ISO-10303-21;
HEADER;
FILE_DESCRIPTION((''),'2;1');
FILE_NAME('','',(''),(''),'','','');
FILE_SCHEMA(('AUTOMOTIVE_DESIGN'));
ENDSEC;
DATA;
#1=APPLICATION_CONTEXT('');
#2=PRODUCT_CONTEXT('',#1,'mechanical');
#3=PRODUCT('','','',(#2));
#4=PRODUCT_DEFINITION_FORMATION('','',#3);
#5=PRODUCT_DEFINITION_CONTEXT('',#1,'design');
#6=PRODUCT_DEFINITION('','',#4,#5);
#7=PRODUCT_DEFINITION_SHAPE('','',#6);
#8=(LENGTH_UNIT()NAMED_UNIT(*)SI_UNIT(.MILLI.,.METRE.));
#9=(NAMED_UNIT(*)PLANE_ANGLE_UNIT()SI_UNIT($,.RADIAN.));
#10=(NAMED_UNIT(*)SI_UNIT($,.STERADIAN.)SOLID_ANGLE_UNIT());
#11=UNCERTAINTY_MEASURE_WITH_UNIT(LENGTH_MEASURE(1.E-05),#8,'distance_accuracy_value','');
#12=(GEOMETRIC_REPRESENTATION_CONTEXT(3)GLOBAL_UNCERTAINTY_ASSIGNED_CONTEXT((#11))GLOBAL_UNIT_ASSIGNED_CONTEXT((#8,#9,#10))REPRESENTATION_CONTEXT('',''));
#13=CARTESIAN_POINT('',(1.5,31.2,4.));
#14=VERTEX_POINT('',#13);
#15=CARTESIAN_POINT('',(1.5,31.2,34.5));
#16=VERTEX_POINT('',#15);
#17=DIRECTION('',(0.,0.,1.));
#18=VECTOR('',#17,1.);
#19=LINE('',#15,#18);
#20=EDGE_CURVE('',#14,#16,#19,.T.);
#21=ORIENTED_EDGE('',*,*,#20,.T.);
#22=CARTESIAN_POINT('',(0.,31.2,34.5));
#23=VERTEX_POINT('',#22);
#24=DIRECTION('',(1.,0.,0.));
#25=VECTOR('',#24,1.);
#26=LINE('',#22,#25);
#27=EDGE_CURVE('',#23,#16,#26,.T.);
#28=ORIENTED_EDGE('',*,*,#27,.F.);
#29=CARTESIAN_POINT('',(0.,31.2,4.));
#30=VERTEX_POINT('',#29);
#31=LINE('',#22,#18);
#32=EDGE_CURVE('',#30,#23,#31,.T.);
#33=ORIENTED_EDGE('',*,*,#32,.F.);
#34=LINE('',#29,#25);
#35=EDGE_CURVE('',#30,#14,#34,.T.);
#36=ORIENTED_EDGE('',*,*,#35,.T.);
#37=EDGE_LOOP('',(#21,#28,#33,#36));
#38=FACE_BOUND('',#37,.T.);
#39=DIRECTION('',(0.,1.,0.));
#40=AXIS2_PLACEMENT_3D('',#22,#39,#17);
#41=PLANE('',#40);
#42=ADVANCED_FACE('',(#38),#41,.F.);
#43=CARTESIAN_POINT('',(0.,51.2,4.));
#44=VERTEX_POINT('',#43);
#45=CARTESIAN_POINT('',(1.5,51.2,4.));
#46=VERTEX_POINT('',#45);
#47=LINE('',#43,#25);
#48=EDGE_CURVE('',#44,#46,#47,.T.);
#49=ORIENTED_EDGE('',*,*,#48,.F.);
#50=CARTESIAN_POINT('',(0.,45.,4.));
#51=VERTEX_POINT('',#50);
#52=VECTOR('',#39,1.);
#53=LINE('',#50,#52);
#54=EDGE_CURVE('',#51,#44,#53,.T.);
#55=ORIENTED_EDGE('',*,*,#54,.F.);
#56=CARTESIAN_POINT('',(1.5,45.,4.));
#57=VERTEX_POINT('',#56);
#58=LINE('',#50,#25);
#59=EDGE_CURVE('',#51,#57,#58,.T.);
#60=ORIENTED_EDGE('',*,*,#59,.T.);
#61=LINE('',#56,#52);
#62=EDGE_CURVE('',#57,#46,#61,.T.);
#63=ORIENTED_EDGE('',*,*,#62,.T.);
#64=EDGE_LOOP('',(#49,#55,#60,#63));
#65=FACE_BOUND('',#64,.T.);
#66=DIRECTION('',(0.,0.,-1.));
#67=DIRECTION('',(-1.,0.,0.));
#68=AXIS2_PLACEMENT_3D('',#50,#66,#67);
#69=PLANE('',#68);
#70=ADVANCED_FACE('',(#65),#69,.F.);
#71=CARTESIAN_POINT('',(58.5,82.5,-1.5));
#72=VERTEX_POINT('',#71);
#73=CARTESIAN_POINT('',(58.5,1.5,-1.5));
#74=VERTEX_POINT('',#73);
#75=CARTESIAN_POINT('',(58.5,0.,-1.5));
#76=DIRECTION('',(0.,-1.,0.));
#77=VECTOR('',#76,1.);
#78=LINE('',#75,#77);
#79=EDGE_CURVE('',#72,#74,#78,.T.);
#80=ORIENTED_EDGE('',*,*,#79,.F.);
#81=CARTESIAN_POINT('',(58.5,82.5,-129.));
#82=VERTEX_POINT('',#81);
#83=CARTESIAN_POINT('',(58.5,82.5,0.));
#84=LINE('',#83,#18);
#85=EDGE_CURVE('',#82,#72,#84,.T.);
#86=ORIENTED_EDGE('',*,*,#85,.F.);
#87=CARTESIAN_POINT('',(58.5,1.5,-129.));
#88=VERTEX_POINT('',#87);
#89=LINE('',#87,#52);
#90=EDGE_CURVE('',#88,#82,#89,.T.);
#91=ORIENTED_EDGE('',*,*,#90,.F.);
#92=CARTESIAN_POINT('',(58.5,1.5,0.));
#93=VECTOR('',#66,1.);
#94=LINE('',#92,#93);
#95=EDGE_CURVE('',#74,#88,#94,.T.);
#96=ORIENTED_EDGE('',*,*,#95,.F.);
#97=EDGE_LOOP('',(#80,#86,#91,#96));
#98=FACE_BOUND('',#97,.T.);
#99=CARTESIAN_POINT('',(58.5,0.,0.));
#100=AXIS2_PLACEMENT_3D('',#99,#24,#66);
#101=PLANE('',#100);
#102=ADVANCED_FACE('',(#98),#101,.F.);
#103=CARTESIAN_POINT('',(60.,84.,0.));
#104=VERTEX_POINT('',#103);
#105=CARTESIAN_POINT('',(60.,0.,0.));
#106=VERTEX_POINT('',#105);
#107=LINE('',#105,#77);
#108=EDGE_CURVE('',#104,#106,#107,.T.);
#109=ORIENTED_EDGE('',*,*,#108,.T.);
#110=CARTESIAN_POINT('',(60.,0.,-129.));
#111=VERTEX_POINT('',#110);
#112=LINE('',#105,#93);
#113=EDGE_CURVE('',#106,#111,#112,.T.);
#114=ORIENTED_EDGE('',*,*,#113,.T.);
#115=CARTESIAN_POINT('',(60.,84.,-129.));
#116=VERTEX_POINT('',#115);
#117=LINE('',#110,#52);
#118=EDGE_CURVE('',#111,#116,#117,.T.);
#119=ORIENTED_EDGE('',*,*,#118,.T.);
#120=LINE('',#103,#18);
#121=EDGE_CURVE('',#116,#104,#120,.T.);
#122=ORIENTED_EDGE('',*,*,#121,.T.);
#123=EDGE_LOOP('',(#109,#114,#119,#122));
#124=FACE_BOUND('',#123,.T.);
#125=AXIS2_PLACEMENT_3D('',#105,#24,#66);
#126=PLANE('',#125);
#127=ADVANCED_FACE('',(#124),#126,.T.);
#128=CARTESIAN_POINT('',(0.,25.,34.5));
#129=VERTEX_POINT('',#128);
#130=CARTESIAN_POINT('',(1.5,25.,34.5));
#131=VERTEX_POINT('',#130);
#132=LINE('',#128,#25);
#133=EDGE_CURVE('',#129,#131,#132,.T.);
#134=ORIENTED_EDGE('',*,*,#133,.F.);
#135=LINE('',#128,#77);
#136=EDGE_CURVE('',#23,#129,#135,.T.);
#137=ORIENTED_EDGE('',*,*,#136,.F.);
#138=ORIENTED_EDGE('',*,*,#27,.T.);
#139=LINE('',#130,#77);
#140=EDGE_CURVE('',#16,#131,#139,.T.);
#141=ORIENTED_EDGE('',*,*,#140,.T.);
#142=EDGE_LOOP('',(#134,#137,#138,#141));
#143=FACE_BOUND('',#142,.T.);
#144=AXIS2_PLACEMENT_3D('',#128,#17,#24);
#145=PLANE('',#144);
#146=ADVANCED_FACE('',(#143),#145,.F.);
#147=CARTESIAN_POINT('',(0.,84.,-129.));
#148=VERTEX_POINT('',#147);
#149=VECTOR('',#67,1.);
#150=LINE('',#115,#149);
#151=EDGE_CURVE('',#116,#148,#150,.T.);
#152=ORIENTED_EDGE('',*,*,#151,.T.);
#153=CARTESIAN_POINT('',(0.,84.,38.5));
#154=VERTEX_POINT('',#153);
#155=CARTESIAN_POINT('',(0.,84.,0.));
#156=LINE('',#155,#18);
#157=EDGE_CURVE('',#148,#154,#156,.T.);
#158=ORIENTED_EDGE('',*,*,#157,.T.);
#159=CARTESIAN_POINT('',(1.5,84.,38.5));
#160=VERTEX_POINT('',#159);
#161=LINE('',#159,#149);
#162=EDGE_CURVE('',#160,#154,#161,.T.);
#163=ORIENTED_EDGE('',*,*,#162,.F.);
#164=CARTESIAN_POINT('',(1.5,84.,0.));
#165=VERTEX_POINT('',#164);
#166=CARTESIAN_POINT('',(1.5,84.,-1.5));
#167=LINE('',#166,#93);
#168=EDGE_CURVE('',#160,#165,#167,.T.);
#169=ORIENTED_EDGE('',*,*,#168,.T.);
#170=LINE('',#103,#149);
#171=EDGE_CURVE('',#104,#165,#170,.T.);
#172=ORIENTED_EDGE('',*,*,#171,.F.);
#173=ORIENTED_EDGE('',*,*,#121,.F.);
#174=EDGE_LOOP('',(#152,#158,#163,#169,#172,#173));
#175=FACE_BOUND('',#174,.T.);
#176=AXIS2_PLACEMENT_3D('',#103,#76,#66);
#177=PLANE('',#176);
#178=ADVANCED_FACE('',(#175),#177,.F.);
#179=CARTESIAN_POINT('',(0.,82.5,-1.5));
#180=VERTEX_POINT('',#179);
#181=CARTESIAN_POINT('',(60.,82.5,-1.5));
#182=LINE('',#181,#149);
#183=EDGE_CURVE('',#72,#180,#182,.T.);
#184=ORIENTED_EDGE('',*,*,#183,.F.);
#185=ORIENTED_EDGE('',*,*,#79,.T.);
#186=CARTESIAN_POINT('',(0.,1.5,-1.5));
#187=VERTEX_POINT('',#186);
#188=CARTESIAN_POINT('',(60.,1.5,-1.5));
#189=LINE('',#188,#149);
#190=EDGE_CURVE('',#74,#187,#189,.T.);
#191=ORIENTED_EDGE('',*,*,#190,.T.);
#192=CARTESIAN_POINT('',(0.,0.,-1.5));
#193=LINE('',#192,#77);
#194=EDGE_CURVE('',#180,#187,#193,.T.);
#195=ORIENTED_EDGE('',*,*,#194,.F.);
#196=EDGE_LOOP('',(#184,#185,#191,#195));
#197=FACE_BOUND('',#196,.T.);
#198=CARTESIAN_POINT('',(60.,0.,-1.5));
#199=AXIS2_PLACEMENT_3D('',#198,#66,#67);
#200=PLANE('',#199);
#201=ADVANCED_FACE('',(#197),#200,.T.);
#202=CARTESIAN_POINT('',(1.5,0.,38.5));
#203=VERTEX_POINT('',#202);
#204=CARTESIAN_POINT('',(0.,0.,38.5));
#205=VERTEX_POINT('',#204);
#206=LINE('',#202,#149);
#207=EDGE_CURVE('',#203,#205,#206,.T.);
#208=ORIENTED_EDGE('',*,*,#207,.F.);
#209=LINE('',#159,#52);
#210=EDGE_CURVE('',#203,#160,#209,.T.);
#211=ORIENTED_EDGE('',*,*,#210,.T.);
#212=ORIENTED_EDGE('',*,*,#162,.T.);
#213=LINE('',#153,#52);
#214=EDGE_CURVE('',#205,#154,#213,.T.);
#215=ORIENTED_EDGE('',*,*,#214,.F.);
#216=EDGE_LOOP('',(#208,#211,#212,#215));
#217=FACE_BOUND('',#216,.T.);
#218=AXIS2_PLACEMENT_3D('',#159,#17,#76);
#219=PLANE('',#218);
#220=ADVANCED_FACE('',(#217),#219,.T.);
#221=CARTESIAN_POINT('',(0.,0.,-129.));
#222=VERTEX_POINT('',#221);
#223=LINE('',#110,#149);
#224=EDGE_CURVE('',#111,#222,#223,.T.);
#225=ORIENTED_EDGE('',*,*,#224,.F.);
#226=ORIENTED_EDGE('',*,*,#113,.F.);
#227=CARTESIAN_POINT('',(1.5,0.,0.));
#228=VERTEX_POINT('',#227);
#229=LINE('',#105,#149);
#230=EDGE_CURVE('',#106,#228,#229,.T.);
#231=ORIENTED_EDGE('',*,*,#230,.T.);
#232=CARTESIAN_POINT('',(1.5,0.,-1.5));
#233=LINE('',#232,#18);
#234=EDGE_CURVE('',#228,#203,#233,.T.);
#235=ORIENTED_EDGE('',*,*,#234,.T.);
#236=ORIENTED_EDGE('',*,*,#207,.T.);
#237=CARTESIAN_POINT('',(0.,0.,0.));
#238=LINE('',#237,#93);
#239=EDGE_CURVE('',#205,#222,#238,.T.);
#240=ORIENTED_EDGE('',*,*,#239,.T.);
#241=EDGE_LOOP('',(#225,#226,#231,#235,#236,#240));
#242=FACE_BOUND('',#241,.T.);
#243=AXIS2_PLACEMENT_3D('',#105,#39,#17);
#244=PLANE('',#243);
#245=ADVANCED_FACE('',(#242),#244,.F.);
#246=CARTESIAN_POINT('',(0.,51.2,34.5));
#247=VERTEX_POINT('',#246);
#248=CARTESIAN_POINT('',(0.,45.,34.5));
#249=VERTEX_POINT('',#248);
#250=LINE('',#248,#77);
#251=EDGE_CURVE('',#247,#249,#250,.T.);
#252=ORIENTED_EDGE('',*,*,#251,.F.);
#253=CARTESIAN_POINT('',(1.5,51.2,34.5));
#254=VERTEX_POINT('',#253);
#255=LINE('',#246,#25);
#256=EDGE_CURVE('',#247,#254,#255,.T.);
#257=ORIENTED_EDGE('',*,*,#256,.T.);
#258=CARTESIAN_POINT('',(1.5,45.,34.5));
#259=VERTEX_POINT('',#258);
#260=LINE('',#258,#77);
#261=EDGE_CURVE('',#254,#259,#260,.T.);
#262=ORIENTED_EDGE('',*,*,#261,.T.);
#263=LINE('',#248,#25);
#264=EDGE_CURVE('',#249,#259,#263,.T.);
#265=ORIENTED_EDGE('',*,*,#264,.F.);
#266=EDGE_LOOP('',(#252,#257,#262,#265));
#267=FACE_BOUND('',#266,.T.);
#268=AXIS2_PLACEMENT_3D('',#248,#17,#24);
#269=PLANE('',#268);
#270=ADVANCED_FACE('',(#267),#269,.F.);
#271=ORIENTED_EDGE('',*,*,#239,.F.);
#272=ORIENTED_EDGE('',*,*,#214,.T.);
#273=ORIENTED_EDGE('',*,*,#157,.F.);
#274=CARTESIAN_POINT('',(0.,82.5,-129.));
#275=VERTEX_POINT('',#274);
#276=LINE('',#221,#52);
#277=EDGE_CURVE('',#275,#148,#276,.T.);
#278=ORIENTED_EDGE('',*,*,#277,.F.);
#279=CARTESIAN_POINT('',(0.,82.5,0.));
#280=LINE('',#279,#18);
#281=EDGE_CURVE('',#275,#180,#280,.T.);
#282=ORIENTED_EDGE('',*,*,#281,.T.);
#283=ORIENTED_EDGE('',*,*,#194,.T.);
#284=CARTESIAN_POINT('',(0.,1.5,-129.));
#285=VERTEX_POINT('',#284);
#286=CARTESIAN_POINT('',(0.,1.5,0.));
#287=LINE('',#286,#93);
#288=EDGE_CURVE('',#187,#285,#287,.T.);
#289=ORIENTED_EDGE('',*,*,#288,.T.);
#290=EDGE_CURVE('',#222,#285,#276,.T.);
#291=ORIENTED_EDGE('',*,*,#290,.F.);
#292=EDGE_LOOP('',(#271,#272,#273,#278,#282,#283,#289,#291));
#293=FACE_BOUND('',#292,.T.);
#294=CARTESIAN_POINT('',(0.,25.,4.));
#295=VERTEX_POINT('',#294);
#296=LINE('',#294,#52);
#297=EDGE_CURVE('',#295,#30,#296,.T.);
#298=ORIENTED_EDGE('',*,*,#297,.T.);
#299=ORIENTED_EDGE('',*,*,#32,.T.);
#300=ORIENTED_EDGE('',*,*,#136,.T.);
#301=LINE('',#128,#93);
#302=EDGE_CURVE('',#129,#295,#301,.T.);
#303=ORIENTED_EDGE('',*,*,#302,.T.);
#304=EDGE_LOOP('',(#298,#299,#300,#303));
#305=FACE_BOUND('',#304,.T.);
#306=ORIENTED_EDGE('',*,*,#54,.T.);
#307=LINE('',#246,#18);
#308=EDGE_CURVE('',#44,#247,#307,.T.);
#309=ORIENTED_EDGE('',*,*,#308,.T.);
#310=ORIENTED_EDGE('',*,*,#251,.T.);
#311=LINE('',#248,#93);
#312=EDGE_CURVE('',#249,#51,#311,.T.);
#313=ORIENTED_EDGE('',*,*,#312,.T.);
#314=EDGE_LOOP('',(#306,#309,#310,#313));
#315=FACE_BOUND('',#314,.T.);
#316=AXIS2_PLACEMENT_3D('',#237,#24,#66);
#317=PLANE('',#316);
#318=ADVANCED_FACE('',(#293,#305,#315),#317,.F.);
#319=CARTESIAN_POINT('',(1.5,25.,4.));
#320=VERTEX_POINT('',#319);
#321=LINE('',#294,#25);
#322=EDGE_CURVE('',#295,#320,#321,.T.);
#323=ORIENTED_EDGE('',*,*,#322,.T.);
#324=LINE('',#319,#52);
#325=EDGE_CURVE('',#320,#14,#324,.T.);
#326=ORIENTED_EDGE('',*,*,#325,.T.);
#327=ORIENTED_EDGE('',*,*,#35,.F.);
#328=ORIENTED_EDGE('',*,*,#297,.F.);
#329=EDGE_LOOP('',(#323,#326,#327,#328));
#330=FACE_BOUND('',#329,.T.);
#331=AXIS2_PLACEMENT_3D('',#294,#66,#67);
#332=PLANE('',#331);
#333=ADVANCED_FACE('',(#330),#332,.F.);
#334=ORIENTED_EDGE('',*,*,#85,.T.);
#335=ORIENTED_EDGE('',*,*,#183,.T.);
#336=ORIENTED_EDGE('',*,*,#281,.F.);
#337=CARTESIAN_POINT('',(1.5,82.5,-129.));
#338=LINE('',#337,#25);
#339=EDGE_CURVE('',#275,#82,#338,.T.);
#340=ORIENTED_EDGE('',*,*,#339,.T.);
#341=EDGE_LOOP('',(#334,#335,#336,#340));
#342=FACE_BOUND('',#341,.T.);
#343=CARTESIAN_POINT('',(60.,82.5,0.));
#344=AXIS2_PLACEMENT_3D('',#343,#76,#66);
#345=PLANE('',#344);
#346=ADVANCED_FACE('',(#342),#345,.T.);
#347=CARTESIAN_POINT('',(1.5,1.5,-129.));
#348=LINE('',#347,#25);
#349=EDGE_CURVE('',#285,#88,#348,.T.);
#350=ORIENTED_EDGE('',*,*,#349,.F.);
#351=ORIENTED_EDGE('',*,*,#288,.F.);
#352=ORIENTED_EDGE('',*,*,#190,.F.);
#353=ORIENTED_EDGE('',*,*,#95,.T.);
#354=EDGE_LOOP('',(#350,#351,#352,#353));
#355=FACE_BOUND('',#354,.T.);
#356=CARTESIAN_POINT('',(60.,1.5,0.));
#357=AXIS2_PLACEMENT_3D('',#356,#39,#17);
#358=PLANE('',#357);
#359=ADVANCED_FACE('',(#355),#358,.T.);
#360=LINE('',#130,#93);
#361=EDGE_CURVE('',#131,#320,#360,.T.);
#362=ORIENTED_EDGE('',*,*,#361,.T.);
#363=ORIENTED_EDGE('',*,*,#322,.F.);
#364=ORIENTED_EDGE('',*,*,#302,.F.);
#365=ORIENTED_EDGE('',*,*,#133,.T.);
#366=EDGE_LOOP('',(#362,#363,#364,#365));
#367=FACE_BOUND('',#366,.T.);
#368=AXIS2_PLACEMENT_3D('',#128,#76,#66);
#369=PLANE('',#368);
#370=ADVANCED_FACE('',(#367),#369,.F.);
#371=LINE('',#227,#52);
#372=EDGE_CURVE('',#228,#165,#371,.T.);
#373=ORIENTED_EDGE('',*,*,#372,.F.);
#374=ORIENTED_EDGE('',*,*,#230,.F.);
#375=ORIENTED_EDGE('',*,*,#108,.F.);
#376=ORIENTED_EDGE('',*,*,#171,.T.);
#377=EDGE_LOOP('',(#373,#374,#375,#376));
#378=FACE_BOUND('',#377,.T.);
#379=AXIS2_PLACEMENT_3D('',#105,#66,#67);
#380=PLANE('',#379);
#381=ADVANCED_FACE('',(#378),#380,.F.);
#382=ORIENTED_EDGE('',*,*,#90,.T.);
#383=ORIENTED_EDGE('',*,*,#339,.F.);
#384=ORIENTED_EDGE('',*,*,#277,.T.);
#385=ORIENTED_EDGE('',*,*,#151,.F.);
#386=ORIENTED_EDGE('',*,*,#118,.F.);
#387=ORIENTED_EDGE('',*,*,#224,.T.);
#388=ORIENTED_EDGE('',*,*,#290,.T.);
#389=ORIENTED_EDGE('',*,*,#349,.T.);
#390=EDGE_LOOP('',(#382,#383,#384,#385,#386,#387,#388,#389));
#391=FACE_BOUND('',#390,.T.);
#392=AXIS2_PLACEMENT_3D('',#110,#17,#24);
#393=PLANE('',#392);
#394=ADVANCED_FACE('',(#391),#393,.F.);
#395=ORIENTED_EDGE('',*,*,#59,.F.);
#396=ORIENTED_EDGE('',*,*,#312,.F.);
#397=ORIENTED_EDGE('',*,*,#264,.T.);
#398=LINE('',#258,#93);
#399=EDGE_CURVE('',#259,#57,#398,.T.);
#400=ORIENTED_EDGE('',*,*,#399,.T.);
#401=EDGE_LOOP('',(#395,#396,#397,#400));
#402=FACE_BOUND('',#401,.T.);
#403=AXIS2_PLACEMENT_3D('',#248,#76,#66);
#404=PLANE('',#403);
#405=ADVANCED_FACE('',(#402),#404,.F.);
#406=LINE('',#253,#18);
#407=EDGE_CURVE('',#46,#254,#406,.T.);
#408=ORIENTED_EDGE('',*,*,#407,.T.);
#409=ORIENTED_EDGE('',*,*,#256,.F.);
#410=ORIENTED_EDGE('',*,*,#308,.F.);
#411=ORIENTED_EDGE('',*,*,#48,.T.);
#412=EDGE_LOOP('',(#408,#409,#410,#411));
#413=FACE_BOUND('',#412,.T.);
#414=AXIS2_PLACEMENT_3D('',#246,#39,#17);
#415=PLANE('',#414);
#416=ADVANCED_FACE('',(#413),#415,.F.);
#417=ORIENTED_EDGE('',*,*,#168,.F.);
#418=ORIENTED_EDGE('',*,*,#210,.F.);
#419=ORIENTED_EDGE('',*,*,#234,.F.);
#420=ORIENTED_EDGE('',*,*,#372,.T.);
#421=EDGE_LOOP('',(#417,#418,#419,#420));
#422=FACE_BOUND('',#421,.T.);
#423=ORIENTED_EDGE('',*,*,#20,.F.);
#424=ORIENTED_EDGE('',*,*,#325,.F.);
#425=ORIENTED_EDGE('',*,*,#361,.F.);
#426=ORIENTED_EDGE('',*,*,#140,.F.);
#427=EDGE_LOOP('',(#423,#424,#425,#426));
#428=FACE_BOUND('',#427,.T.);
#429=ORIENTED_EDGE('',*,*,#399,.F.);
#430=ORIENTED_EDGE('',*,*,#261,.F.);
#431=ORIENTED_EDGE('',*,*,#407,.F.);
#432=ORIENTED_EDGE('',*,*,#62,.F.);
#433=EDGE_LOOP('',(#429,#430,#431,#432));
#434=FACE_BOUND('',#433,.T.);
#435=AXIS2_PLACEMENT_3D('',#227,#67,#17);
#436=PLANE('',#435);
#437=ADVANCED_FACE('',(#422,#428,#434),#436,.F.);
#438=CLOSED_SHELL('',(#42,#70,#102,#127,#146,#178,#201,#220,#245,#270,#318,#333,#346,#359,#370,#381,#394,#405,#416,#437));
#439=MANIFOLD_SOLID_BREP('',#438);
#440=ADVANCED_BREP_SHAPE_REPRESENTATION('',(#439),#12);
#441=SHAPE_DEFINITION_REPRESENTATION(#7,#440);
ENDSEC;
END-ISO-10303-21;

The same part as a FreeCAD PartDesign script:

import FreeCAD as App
import Part
import Sketcher
from FreeCAD import Vector


def faces_at(feature, points):
    """Names of the faces that lie closest to the given points."""
    faces = feature.Shape.Faces
    near = lambda p: min(range(len(faces)), key=lambda i: faces[i].distToShape(Part.Vertex(*p))[0])
    return sorted({f"Face{near(p) + 1}" for p in points})

doc = App.newDocument("Part")
body = doc.addObject("PartDesign::Body", "Body")

sketch1 = body.newObject("Sketcher::SketchObject", "Sketch")
sketch1.AttachmentSupport = (doc.getObject("YZ_Plane"), [""])
sketch1.MapMode = "FlatFace"
sketch1.addGeometry([
    Part.LineSegment(Vector(0, 0, 0), Vector(0, -129, 0)),
    Part.LineSegment(Vector(0, -129, 0), Vector(84, -129, 0)),
    Part.LineSegment(Vector(84, -129, 0), Vector(84, 0, 0)),
    Part.LineSegment(Vector(84, 0, 0), Vector(0, 0, 0)),
], False)
sketch1.addConstraint([
    Sketcher.Constraint("Coincident", 0, 2, 1, 1),
    Sketcher.Constraint("Coincident", 1, 2, 2, 1),
    Sketcher.Constraint("Coincident", 2, 2, 3, 1),
    Sketcher.Constraint("Coincident", 3, 2, 0, 1),
    Sketcher.Constraint("Vertical", 0),
    Sketcher.Constraint("Horizontal", 1),
    Sketcher.Constraint("Vertical", 2),
    Sketcher.Constraint("Horizontal", 3),
    Sketcher.Constraint("Coincident", 3, 2, -1, 1),
    Sketcher.Constraint("DistanceX", 1, 1, 1, 2, 84.0),
    Sketcher.Constraint("DistanceY", 0, 2, 0, 1, 129.0),
])
pad1 = body.newObject("PartDesign::Pad", "Pad")
pad1.Profile = sketch1
pad1.Length = 60
doc.recompute()

thickness = body.newObject("PartDesign::Thickness", "Thickness")
thickness.Base = (pad1, faces_at(pad1, [(0, 42, -64.5)]))
thickness.Value = 1.5
thickness.Reversed = True
thickness.Join = "Intersection"

sketch2 = body.newObject("Sketcher::SketchObject", "Sketch001")
sketch2.AttachmentSupport = (doc.getObject("XY_Plane"), [""])
sketch2.MapMode = "FlatFace"
sketch2.AttachmentOffset = App.Placement(Vector(0, 0, -129), App.Rotation())
sketch2.addGeometry([
    Part.LineSegment(Vector(58, 82, 0), Vector(58, 2, 0)),
    Part.LineSegment(Vector(58, 2, 0), Vector(0, 2, 0)),
    Part.LineSegment(Vector(0, 2, 0), Vector(0, 82, 0)),
    Part.LineSegment(Vector(0, 82, 0), Vector(58, 82, 0)),
], False)
sketch2.addConstraint([
    Sketcher.Constraint("Coincident", 0, 2, 1, 1),
    Sketcher.Constraint("Coincident", 1, 2, 2, 1),
    Sketcher.Constraint("Coincident", 2, 2, 3, 1),
    Sketcher.Constraint("Coincident", 3, 2, 0, 1),
    Sketcher.Constraint("Vertical", 0),
    Sketcher.Constraint("Horizontal", 1),
    Sketcher.Constraint("Vertical", 2),
    Sketcher.Constraint("Horizontal", 3),
    Sketcher.Constraint("PointOnObject", 1, 2, -2),
    Sketcher.Constraint("DistanceY", 0, 2, 0, 1, 81.0),
    Sketcher.Constraint("DistanceX", 1, 2, 1, 1, 58.5),
    Sketcher.Constraint("DistanceY", -1, 1, 0, 2, 1.5),
])
pocket1 = body.newObject("PartDesign::Pocket", "Pocket")
pocket1.Profile = sketch2
pocket1.Length = 127.5
pocket1.Reversed = True

sketch3 = body.newObject("Sketcher::SketchObject", "Sketch002")
sketch3.AttachmentSupport = (doc.getObject("YZ_Plane"), [""])
sketch3.MapMode = "FlatFace"
sketch3.addGeometry([
    Part.LineSegment(Vector(84, -2, 0), Vector(0, -2, 0)),
    Part.LineSegment(Vector(0, -2, 0), Vector(0, 38, 0)),
    Part.LineSegment(Vector(0, 38, 0), Vector(84, 38, 0)),
    Part.LineSegment(Vector(84, 38, 0), Vector(84, -2, 0)),
], False)
sketch3.addConstraint([
    Sketcher.Constraint("Coincident", 0, 2, 1, 1),
    Sketcher.Constraint("Coincident", 1, 2, 2, 1),
    Sketcher.Constraint("Coincident", 2, 2, 3, 1),
    Sketcher.Constraint("Coincident", 3, 2, 0, 1),
    Sketcher.Constraint("Horizontal", 0),
    Sketcher.Constraint("Vertical", 1),
    Sketcher.Constraint("Horizontal", 2),
    Sketcher.Constraint("Vertical", 3),
    Sketcher.Constraint("PointOnObject", 0, 2, -2),
    Sketcher.Constraint("DistanceX", 0, 2, 0, 1, 84.0),
    Sketcher.Constraint("DistanceY", 1, 1, 1, 2, 40.0),
    Sketcher.Constraint("DistanceY", 0, 2, -1, 1, 1.5),
])
pad2 = body.newObject("PartDesign::Pad", "Pad001")
pad2.Profile = sketch3
pad2.Length = 1.5

sketch4 = body.newObject("Sketcher::SketchObject", "Sketch003")
sketch4.AttachmentSupport = (doc.getObject("YZ_Plane"), [""])
sketch4.MapMode = "FlatFace"
sketch4.AttachmentOffset = App.Placement(Vector(0, 0, 1.5), App.Rotation())
sketch4.addGeometry([
    Part.LineSegment(Vector(31, 34, 0), Vector(25, 34, 0)),
    Part.LineSegment(Vector(25, 34, 0), Vector(25, 4, 0)),
    Part.LineSegment(Vector(25, 4, 0), Vector(31, 4, 0)),
    Part.LineSegment(Vector(31, 4, 0), Vector(31, 34, 0)),
    Part.LineSegment(Vector(51, 34, 0), Vector(45, 34, 0)),
    Part.LineSegment(Vector(45, 34, 0), Vector(45, 4, 0)),
    Part.LineSegment(Vector(45, 4, 0), Vector(51, 4, 0)),
    Part.LineSegment(Vector(51, 4, 0), Vector(51, 34, 0)),
], False)
sketch4.addConstraint([
    Sketcher.Constraint("Coincident", 0, 2, 1, 1),
    Sketcher.Constraint("Coincident", 1, 2, 2, 1),
    Sketcher.Constraint("Coincident", 2, 2, 3, 1),
    Sketcher.Constraint("Coincident", 3, 2, 0, 1),
    Sketcher.Constraint("Coincident", 4, 2, 5, 1),
    Sketcher.Constraint("Coincident", 5, 2, 6, 1),
    Sketcher.Constraint("Coincident", 6, 2, 7, 1),
    Sketcher.Constraint("Coincident", 7, 2, 4, 1),
    Sketcher.Constraint("Horizontal", 0),
    Sketcher.Constraint("Vertical", 1),
    Sketcher.Constraint("Horizontal", 2),
    Sketcher.Constraint("Vertical", 3),
    Sketcher.Constraint("Horizontal", 4),
    Sketcher.Constraint("Vertical", 5),
    Sketcher.Constraint("Horizontal", 6),
    Sketcher.Constraint("Vertical", 7),
    Sketcher.Constraint("Horizontal", 3, 2, 4, 2),
    Sketcher.Constraint("Horizontal", 2, 2, 5, 2),
    Sketcher.Constraint("Equal", 2, 4),
    Sketcher.Constraint("DistanceX", 0, 2, 0, 1, 6.2),
    Sketcher.Constraint("DistanceY", 1, 2, 1, 1, 30.5),
    Sketcher.Constraint("DistanceX", -1, 1, 0, 2, 25.0),
    Sketcher.Constraint("DistanceY", -1, 1, 1, 2, 4.0),
    Sketcher.Constraint("DistanceX", -1, 1, 4, 2, 45.0),
])
pocket2 = body.newObject("PartDesign::Pocket", "Pocket001")
pocket2.Profile = sketch4
pocket2.Type = "ThroughAll"

doc.recompute()
